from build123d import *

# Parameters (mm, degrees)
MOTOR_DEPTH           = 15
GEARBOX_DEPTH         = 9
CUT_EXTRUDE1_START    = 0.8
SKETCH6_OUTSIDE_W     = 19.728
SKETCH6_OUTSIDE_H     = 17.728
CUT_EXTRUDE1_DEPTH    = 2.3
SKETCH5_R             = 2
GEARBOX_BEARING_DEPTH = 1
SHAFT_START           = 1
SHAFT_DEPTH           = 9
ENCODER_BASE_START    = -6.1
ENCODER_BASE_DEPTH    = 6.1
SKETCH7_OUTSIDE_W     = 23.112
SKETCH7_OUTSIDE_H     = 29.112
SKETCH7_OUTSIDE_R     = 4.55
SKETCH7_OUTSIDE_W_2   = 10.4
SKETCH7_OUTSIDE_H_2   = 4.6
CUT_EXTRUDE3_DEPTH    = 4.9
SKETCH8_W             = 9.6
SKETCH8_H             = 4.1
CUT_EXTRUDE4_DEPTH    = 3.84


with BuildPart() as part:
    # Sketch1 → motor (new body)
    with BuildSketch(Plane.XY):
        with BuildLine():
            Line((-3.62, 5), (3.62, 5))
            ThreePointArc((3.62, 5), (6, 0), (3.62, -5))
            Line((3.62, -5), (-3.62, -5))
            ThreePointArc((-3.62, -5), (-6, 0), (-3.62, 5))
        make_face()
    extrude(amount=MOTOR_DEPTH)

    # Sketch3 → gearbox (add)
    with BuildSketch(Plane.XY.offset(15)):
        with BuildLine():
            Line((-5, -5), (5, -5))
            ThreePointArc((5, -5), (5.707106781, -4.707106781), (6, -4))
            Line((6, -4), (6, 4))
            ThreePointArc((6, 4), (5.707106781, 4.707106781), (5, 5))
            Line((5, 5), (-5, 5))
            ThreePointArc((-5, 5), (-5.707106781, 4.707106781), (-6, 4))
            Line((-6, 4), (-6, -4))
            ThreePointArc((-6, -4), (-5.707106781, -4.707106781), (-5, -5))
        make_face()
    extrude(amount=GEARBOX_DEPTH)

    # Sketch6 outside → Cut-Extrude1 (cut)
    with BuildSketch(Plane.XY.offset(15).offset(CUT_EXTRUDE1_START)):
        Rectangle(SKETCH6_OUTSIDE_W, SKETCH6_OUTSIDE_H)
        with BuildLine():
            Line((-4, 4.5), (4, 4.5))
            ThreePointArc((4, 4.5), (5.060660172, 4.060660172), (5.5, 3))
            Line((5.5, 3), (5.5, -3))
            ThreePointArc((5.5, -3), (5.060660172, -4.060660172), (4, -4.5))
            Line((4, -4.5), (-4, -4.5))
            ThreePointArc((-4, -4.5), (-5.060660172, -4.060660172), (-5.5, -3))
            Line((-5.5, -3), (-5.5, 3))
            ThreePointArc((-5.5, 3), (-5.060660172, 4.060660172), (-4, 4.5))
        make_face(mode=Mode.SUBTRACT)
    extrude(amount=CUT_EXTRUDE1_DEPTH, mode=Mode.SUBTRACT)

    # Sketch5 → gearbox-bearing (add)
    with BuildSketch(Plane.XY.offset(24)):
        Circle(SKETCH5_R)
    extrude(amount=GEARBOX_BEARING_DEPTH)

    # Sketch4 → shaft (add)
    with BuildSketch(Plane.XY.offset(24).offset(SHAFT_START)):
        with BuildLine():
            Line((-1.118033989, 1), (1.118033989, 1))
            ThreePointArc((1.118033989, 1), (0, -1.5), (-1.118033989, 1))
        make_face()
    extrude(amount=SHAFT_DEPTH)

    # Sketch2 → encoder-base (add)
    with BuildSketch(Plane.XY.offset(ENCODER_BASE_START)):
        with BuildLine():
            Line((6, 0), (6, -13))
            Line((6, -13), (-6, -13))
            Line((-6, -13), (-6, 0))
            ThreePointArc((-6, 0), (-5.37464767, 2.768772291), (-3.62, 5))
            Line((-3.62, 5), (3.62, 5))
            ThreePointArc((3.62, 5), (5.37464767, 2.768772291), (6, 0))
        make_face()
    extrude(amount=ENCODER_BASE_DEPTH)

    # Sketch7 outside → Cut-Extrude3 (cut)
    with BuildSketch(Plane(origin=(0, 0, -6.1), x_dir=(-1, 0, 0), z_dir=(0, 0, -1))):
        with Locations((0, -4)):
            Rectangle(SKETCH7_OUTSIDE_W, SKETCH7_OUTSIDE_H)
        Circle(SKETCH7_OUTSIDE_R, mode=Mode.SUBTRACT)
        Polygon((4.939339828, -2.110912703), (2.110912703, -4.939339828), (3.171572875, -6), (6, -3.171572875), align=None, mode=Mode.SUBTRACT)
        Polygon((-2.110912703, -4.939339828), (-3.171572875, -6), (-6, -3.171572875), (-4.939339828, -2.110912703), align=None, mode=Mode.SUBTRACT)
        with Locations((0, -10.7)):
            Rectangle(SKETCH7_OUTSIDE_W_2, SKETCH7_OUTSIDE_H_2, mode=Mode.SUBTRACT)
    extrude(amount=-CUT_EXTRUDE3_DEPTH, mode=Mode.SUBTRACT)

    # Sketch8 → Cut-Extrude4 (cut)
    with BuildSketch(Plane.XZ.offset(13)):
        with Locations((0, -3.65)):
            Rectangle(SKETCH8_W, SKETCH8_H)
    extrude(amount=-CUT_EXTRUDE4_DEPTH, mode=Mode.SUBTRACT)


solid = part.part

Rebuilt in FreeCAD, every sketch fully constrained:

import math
import FreeCAD as App
import Part
import Sketcher

doc = App.newDocument("Part")
body = doc.addObject("PartDesign::Body", "Body")

# Sketch on XY plane
sketch1 = body.newObject("Sketcher::SketchObject", "Sketch")
sketch1.AttachmentSupport = (doc.getObject("XY_Plane"), [""])
sketch1.MapMode = "FlatFace"
sketch1.addGeometry([
    Part.LineSegment(App.Vector(3.62, 5, 0), App.Vector(-3.62, 5, 0)),
    Part.ArcOfCircle(Part.Circle(App.Vector(0.442101, 0, 0), App.Vector(0, 0, 1), 6.442101), math.radians(129.091104), math.radians(230.908896)),
    Part.LineSegment(App.Vector(-3.62, -5, 0), App.Vector(3.62, -5, 0)),
    Part.ArcOfCircle(Part.Circle(App.Vector(-0.442101, 0, 0), App.Vector(0, 0, 1), 6.442101), math.radians(-50.908896), math.radians(50.908896)),
], False)
sketch1.addConstraint([
    Sketcher.Constraint("Coincident", 0, 2, 1, 1),
    Sketcher.Constraint("Coincident", 1, 2, 2, 1),
    Sketcher.Constraint("Coincident", 2, 2, 3, 1),
    Sketcher.Constraint("Coincident", 3, 2, 0, 1),
    Sketcher.Constraint("Horizontal", 0),
    Sketcher.Constraint("Horizontal", 2),
    Sketcher.Constraint("Equal", 1, 3),
    Sketcher.Constraint("Symmetric", 1, 3, 3, 3, -1, 1),
    Sketcher.Constraint("Symmetric", 0, 2, 1, 2, -1),
    Sketcher.Constraint("DistanceY", -1, 1, 0, 2, 5.0),
    Sketcher.Constraint("DistanceX", 0, 2, 0, 1, 7.24),
    Sketcher.Constraint("Radius", 1, 6.442101),
])
pad1 = body.newObject("PartDesign::Pad", "Pad")
pad1.Profile = sketch1
pad1.Length = 15

# Sketch on XY plane
sketch2 = body.newObject("Sketcher::SketchObject", "Sketch001")
sketch2.AttachmentSupport = (doc.getObject("XY_Plane"), [""])
sketch2.MapMode = "FlatFace"
sketch2.AttachmentOffset = App.Placement(App.Vector(0, 0, 15), App.Rotation())
sketch2.addGeometry([
    Part.LineSegment(App.Vector(-5, -5, 0), App.Vector(5, -5, 0)),  # 0
    Part.ArcOfCircle(Part.Circle(App.Vector(5, -4, 0), App.Vector(0, 0, 1), 1), math.radians(-90), math.radians(0)),  # 1
    Part.LineSegment(App.Vector(6, -4, 0), App.Vector(6, 4, 0)),  # 2
    Part.ArcOfCircle(Part.Circle(App.Vector(5, 4, 0), App.Vector(0, 0, 1), 1), math.radians(0), math.radians(90)),  # 3
    Part.LineSegment(App.Vector(5, 5, 0), App.Vector(-5, 5, 0)),  # 4
    Part.ArcOfCircle(Part.Circle(App.Vector(-5, 4, 0), App.Vector(0, 0, 1), 1), math.radians(90), math.radians(180)),  # 5
    Part.LineSegment(App.Vector(-6, 4, 0), App.Vector(-6, -4, 0)),  # 6
    Part.ArcOfCircle(Part.Circle(App.Vector(-5, -4, 0), App.Vector(0, 0, 1), 1), math.radians(-180), math.radians(-90)),  # 7
], False)
sketch2.addConstraint([
    Sketcher.Constraint("Tangent", 0, 2, 1, 1),
    Sketcher.Constraint("Tangent", 1, 2, 2, 1),
    Sketcher.Constraint("Tangent", 2, 2, 3, 1),
    Sketcher.Constraint("Tangent", 3, 2, 4, 1),
    Sketcher.Constraint("Tangent", 4, 2, 5, 1),
    Sketcher.Constraint("Tangent", 5, 2, 6, 1),
    Sketcher.Constraint("Tangent", 6, 2, 7, 1),
    Sketcher.Constraint("Tangent", 7, 2, 0, 1),
    Sketcher.Constraint("Horizontal", 0),
    Sketcher.Constraint("Vertical", 2),
    Sketcher.Constraint("Horizontal", 4),
    Sketcher.Constraint("Vertical", 6),
    Sketcher.Constraint("Equal", 1, 3),
    Sketcher.Constraint("Equal", 3, 5),
    Sketcher.Constraint("Equal", 5, 7),
    Sketcher.Constraint("Symmetric", 1, 3, 5, 3, -1, 1),
    Sketcher.Constraint("Radius", 1, 1.0),
    Sketcher.Constraint("DistanceX", 0, 1, 0, 2, 10.0),
    Sketcher.Constraint("DistanceY", 2, 1, 2, 2, 8.0),
])
pad2 = body.newObject("PartDesign::Pad", "Pad001")
pad2.Profile = sketch2
pad2.Length = 9

# Sketch on XY plane
sketch3 = body.newObject("Sketcher::SketchObject", "Sketch002")
sketch3.AttachmentSupport = (doc.getObject("XY_Plane"), [""])
sketch3.MapMode = "FlatFace"
sketch3.AttachmentOffset = App.Placement(App.Vector(0, 0, 15.8), App.Rotation())
sketch3.addGeometry([
    Part.LineSegment(App.Vector(-9.864, 8.864, 0), App.Vector(-9.864, -8.864, 0)),  # 0
    Part.LineSegment(App.Vector(-9.864, -8.864, 0), App.Vector(9.864, -8.864, 0)),  # 1
    Part.LineSegment(App.Vector(9.864, -8.864, 0), App.Vector(9.864, 8.864, 0)),  # 2
    Part.LineSegment(App.Vector(9.864, 8.864, 0), App.Vector(-9.864, 8.864, 0)),  # 3
    Part.ArcOfCircle(Part.Circle(App.Vector(-4, 3, 0), App.Vector(0, 0, 1), 1.5), math.radians(90), math.radians(180)),  # 4
    Part.LineSegment(App.Vector(-4, 4.5, 0), App.Vector(4, 4.5, 0)),  # 5
    Part.ArcOfCircle(Part.Circle(App.Vector(4, 3, 0), App.Vector(0, 0, 1), 1.5), math.radians(0), math.radians(90)),  # 6
    Part.LineSegment(App.Vector(5.5, 3, 0), App.Vector(5.5, -3, 0)),  # 7
    Part.ArcOfCircle(Part.Circle(App.Vector(4, -3, 0), App.Vector(0, 0, 1), 1.5), math.radians(-90), math.radians(0)),  # 8
    Part.LineSegment(App.Vector(4, -4.5, 0), App.Vector(-4, -4.5, 0)),  # 9
    Part.ArcOfCircle(Part.Circle(App.Vector(-4, -3, 0), App.Vector(0, 0, 1), 1.5), math.radians(180), math.radians(270)),  # 10
    Part.LineSegment(App.Vector(-5.5, -3, 0), App.Vector(-5.5, 3, 0)),  # 11
], False)
sketch3.addConstraint([
    Sketcher.Constraint("Coincident", 0, 2, 1, 1),
    Sketcher.Constraint("Coincident", 1, 2, 2, 1),
    Sketcher.Constraint("Coincident", 2, 2, 3, 1),
    Sketcher.Constraint("Coincident", 3, 2, 0, 1),
    Sketcher.Constraint("Tangent", 4, 1, 5, 1),
    Sketcher.Constraint("Tangent", 5, 2, 6, 2),
    Sketcher.Constraint("Tangent", 6, 1, 7, 1),
    Sketcher.Constraint("Tangent", 7, 2, 8, 2),
    Sketcher.Constraint("Tangent", 8, 1, 9, 1),
    Sketcher.Constraint("Tangent", 9, 2, 10, 2),
    Sketcher.Constraint("Tangent", 10, 1, 11, 1),
    Sketcher.Constraint("Tangent", 11, 2, 4, 2),
    Sketcher.Constraint("Vertical", 0),
    Sketcher.Constraint("Horizontal", 1),
    Sketcher.Constraint("Vertical", 2),
    Sketcher.Constraint("Horizontal", 3),
    Sketcher.Constraint("Horizontal", 5),
    Sketcher.Constraint("Vertical", 7),
    Sketcher.Constraint("Horizontal", 9),
    Sketcher.Constraint("Vertical", 11),
    Sketcher.Constraint("Equal", 4, 6),
    Sketcher.Constraint("Equal", 6, 8),
    Sketcher.Constraint("Equal", 8, 10),
    Sketcher.Constraint("Symmetric", 4, 3, 8, 3, -1, 1),
    Sketcher.Constraint("Symmetric", 0, 2, 2, 2, -1, 1),
    Sketcher.Constraint("Radius", 4, 1.5),
    Sketcher.Constraint("DistanceX", 5, 1, 5, 2, 8.0),
    Sketcher.Constraint("DistanceY", 7, 2, 7, 1, 6.0),
    Sketcher.Constraint("DistanceX", 1, 1, 1, 2, 19.728),
    Sketcher.Constraint("DistanceY", 0, 2, 0, 1, 17.728),
])
pocket1 = body.newObject("PartDesign::Pocket", "Pocket")
pocket1.Profile = sketch3
pocket1.Length = 2.3
pocket1.Reversed = True

# Sketch on XY plane
sketch4 = body.newObject("Sketcher::SketchObject", "Sketch003")
sketch4.AttachmentSupport = (doc.getObject("XY_Plane"), [""])
sketch4.MapMode = "FlatFace"
sketch4.AttachmentOffset = App.Placement(App.Vector(0, 0, 24), App.Rotation())
sketch4.addGeometry(Part.Circle(App.Vector(0, 0, 0), App.Vector(0, 0, 1), 2), False)
sketch4.addConstraint([
    Sketcher.Constraint("Coincident", 0, 3, -1, 1),
    Sketcher.Constraint("Diameter", 0, 4.0),
])
pad3 = body.newObject("PartDesign::Pad", "Pad002")
pad3.Profile = sketch4
pad3.Length = 1

# Sketch on XY plane
sketch5 = body.newObject("Sketcher::SketchObject", "Sketch004")
sketch5.AttachmentSupport = (doc.getObject("XY_Plane"), [""])
sketch5.MapMode = "FlatFace"
sketch5.AttachmentOffset = App.Placement(App.Vector(0, 0, 25), App.Rotation())
sketch5.addGeometry([
    Part.LineSegment(App.Vector(1.118034, 1, 0), App.Vector(-1.118034, 1, 0)),
    Part.ArcOfCircle(Part.Circle(App.Vector(0, 0, 0), App.Vector(0, 0, 1), 1.5), math.radians(138.189685), math.radians(401.810315)),
], False)
sketch5.addConstraint([
    Sketcher.Constraint("Coincident", 0, 1, 1, 2),
    Sketcher.Constraint("Coincident", 1, 1, 0, 2),
    Sketcher.Constraint("Horizontal", 0),
    Sketcher.Constraint("Coincident", 1, 3, -1, 1),
    Sketcher.Constraint("Radius", 1, 1.5),
    Sketcher.Constraint("DistanceY", -1, 1, 0, 1, 1.0),
])
pad4 = body.newObject("PartDesign::Pad", "Pad003")
pad4.Profile = sketch5
pad4.Length = 9

# Sketch on XY plane
sketch6 = body.newObject("Sketcher::SketchObject", "Sketch005")
sketch6.AttachmentSupport = (doc.getObject("XY_Plane"), [""])
sketch6.MapMode = "FlatFace"
sketch6.AttachmentOffset = App.Placement(App.Vector(0, 0, -6.1), App.Rotation())
sketch6.addGeometry([
    Part.LineSegment(App.Vector(6, -13, 0), App.Vector(6, 0, 0)),  # 0
    Part.ArcOfCircle(Part.Circle(App.Vector(-0.442101, 0, 0), App.Vector(0, 0, 1), 6.442101), math.radians(0), math.radians(50.908896)),  # 1
    Part.LineSegment(App.Vector(3.62, 5, 0), App.Vector(-3.62, 5, 0)),  # 2
    Part.ArcOfCircle(Part.Circle(App.Vector(0.442101, 0, 0), App.Vector(0, 0, 1), 6.442101), math.radians(129.091104), math.radians(180)),  # 3
    Part.LineSegment(App.Vector(-6, 0, 0), App.Vector(-6, -13, 0)),  # 4
    Part.LineSegment(App.Vector(-6, -13, 0), App.Vector(6, -13, 0)),  # 5
], False)
sketch6.addConstraint([
    Sketcher.Constraint("Tangent", 0, 2, 1, 1),
    Sketcher.Constraint("Coincident", 1, 2, 2, 1),
    Sketcher.Constraint("Coincident", 2, 2, 3, 1),
    Sketcher.Constraint("Tangent", 3, 2, 4, 1),
    Sketcher.Constraint("Coincident", 4, 2, 5, 1),
    Sketcher.Constraint("Coincident", 5, 2, 0, 1),
    Sketcher.Constraint("Vertical", 0),
    Sketcher.Constraint("Horizontal", 2),
    Sketcher.Constraint("Vertical", 4),
    Sketcher.Constraint("Horizontal", 5),
    Sketcher.Constraint("Equal", 1, 3),
    Sketcher.Constraint("Symmetric", 1, 3, 3, 3, -1, 1),
    Sketcher.Constraint("PointOnObject", 1, 3, -1),
    Sketcher.Constraint("DistanceX", 5, 1, 5, 2, 12.0),
    Sketcher.Constraint("DistanceY", 0, 1, 0, 2, 13.0),
    Sketcher.Constraint("DistanceY", -1, 1, 1, 2, 5.0),
    Sketcher.Constraint("DistanceX", 2, 2, 2, 1, 7.24),
])
pad5 = body.newObject("PartDesign::Pad", "Pad004")
pad5.Profile = sketch6
pad5.Length = 6.1

# Sketch on XY plane
sketch7 = body.newObject("Sketcher::SketchObject", "Sketch006")
sketch7.AttachmentSupport = (doc.getObject("XY_Plane"), [""])
sketch7.MapMode = "FlatFace"
sketch7.AttachmentOffset = App.Placement(App.Vector(0, 0, -6.1), App.Rotation())
sketch7.addGeometry([
    Part.LineSegment(App.Vector(11.556, 10.556, 0), App.Vector(11.556, -18.556, 0)),  # 0
    Part.LineSegment(App.Vector(11.556, -18.556, 0), App.Vector(-11.556, -18.556, 0)),  # 1
    Part.LineSegment(App.Vector(-11.556, -18.556, 0), App.Vector(-11.556, 10.556, 0)),  # 2
    Part.LineSegment(App.Vector(-11.556, 10.556, 0), App.Vector(11.556, 10.556, 0)),  # 3
    Part.LineSegment(App.Vector(-5.2, -13, 0), App.Vector(5.2, -13, 0)),  # 4
    Part.LineSegment(App.Vector(5.2, -13, 0), App.Vector(5.2, -8.4, 0)),  # 5
    Part.LineSegment(App.Vector(5.2, -8.4, 0), App.Vector(-5.2, -8.4, 0)),  # 6
    Part.LineSegment(App.Vector(-5.2, -8.4, 0), App.Vector(-5.2, -13, 0)),  # 7
    Part.LineSegment(App.Vector(4.93934, -2.110913, 0), App.Vector(2.110913, -4.93934, 0)),  # 8
    Part.LineSegment(App.Vector(2.110913, -4.93934, 0), App.Vector(3.171573, -6, 0)),  # 9
    Part.LineSegment(App.Vector(3.171573, -6, 0), App.Vector(6, -3.171573, 0)),  # 10
    Part.LineSegment(App.Vector(6, -3.171573, 0), App.Vector(4.93934, -2.110913, 0)),  # 11
    Part.Circle(App.Vector(0, 0, 0), App.Vector(0, 0, 1), 4.55),  # 12
    Part.LineSegment(App.Vector(-2.110913, -4.93934, 0), App.Vector(-4.93934, -2.110913, 0)),  # 13
    Part.LineSegment(App.Vector(-4.93934, -2.110913, 0), App.Vector(-6, -3.171573, 0)),  # 14
    Part.LineSegment(App.Vector(-6, -3.171573, 0), App.Vector(-3.171573, -6, 0)),  # 15
    Part.LineSegment(App.Vector(-3.171573, -6, 0), App.Vector(-2.110913, -4.93934, 0)),  # 16
], False)
sketch7.addConstraint([
    Sketcher.Constraint("Coincident", 0, 2, 1, 1),
    Sketcher.Constraint("Coincident", 1, 2, 2, 1),
    Sketcher.Constraint("Coincident", 2, 2, 3, 1),
    Sketcher.Constraint("Coincident", 3, 2, 0, 1),
    Sketcher.Constraint("Coincident", 4, 2, 5, 1),
    Sketcher.Constraint("Coincident", 5, 2, 6, 1),
    Sketcher.Constraint("Coincident", 6, 2, 7, 1),
    Sketcher.Constraint("Coincident", 7, 2, 4, 1),
    Sketcher.Constraint("Coincident", 8, 2, 9, 1),
    Sketcher.Constraint("Coincident", 9, 2, 10, 1),
    Sketcher.Constraint("Coincident", 10, 2, 11, 1),
    Sketcher.Constraint("Coincident", 11, 2, 8, 1),
    Sketcher.Constraint("Coincident", 13, 2, 14, 1),
    Sketcher.Constraint("Coincident", 14, 2, 15, 1),
    Sketcher.Constraint("Coincident", 15, 2, 16, 1),
    Sketcher.Constraint("Coincident", 16, 2, 13, 1),
    Sketcher.Constraint("Vertical", 0),
    Sketcher.Constraint("Horizontal", 1),
    Sketcher.Constraint("Vertical", 2),
    Sketcher.Constraint("Horizontal", 3),
    Sketcher.Constraint("Horizontal", 4),
    Sketcher.Constraint("Vertical", 5),
    Sketcher.Constraint("Horizontal", 6),
    Sketcher.Constraint("Vertical", 7),
    Sketcher.Constraint("Coincident", 12, 3, -1, 1),
    Sketcher.Constraint("Symmetric", 11, 2, 13, 2, -2),
    Sketcher.Constraint("Symmetric", 10, 2, 14, 2, -2),
    Sketcher.Constraint("Symmetric", 9, 2, 15, 2, -2),
    Sketcher.Constraint("Symmetric", 8, 2, 16, 2, -2),
    Sketcher.Constraint("Perpendicular", 8, 9),
    Sketcher.Constraint("Perpendicular", 9, 10),
    Sketcher.Constraint("Perpendicular", 10, 11),
    Sketcher.Constraint("Parallel", 11, 13),
    Sketcher.Constraint("Diameter", 12, 9.1),
    Sketcher.Constraint("Distance", 8, 4.0),
    Sketcher.Constraint("DistanceX", 4, 1, 4, 2, 10.4),
    Sketcher.Constraint("DistanceY", 5, 1, 5, 2, 4.6),
    Sketcher.Constraint("DistanceY", 4, 2, -1, 1, 13.0),
    Sketcher.Constraint("DistanceY", 9, 2, -1, 1, 6.0),
    Sketcher.Constraint("DistanceX", -1, 1, 10, 2, 6.0),
    Sketcher.Constraint("Distance", 9, 1.5),
    Sketcher.Constraint("DistanceX", -1, 1, 4, 2, 5.2),
    Sketcher.Constraint("DistanceX", 1, 2, 1, 1, 23.112),
    Sketcher.Constraint("DistanceY", 0, 2, 0, 1, 29.112),
    Sketcher.Constraint("DistanceX", -1, 1, 0, 2, 11.556),
    Sketcher.Constraint("DistanceY", 0, 2, -1, 1, 18.556),
])
pocket2 = body.newObject("PartDesign::Pocket", "Pocket001")
pocket2.Profile = sketch7
pocket2.Length = 4.9
pocket2.Reversed = True

# Sketch on XZ plane
sketch8 = body.newObject("Sketcher::SketchObject", "Sketch007")
sketch8.AttachmentSupport = (doc.getObject("XZ_Plane"), [""])
sketch8.MapMode = "FlatFace"
sketch8.AttachmentOffset = App.Placement(App.Vector(0, 0, 13), App.Rotation())
sketch8.addGeometry([
    Part.LineSegment(App.Vector(-4.8, -1.6, 0), App.Vector(-4.8, -5.7, 0)),
    Part.LineSegment(App.Vector(-4.8, -5.7, 0), App.Vector(4.8, -5.7, 0)),
    Part.LineSegment(App.Vector(4.8, -5.7, 0), App.Vector(4.8, -1.6, 0)),
    Part.LineSegment(App.Vector(4.8, -1.6, 0), App.Vector(-4.8, -1.6, 0)),
], False)
sketch8.addConstraint([
    Sketcher.Constraint("Coincident", 0, 2, 1, 1),
    Sketcher.Constraint("Coincident", 1, 2, 2, 1),
    Sketcher.Constraint("Coincident", 2, 2, 3, 1),
    Sketcher.Constraint("Coincident", 3, 2, 0, 1),
    Sketcher.Constraint("Vertical", 0),
    Sketcher.Constraint("Horizontal", 1),
    Sketcher.Constraint("Vertical", 2),
    Sketcher.Constraint("Horizontal", 3),
    Sketcher.Constraint("DistanceX", 1, 1, 1, 2, 9.6),
    Sketcher.Constraint("DistanceY", 0, 2, 0, 1, 4.1),
    Sketcher.Constraint("DistanceX", 0, 2, -1, 1, 4.8),
    Sketcher.Constraint("DistanceY", 0, 2, -1, 1, 5.7),
])
pocket3 = body.newObject("PartDesign::Pocket", "Pocket002")
pocket3.Profile = sketch8
pocket3.Length = 3.84

doc.recompute()
